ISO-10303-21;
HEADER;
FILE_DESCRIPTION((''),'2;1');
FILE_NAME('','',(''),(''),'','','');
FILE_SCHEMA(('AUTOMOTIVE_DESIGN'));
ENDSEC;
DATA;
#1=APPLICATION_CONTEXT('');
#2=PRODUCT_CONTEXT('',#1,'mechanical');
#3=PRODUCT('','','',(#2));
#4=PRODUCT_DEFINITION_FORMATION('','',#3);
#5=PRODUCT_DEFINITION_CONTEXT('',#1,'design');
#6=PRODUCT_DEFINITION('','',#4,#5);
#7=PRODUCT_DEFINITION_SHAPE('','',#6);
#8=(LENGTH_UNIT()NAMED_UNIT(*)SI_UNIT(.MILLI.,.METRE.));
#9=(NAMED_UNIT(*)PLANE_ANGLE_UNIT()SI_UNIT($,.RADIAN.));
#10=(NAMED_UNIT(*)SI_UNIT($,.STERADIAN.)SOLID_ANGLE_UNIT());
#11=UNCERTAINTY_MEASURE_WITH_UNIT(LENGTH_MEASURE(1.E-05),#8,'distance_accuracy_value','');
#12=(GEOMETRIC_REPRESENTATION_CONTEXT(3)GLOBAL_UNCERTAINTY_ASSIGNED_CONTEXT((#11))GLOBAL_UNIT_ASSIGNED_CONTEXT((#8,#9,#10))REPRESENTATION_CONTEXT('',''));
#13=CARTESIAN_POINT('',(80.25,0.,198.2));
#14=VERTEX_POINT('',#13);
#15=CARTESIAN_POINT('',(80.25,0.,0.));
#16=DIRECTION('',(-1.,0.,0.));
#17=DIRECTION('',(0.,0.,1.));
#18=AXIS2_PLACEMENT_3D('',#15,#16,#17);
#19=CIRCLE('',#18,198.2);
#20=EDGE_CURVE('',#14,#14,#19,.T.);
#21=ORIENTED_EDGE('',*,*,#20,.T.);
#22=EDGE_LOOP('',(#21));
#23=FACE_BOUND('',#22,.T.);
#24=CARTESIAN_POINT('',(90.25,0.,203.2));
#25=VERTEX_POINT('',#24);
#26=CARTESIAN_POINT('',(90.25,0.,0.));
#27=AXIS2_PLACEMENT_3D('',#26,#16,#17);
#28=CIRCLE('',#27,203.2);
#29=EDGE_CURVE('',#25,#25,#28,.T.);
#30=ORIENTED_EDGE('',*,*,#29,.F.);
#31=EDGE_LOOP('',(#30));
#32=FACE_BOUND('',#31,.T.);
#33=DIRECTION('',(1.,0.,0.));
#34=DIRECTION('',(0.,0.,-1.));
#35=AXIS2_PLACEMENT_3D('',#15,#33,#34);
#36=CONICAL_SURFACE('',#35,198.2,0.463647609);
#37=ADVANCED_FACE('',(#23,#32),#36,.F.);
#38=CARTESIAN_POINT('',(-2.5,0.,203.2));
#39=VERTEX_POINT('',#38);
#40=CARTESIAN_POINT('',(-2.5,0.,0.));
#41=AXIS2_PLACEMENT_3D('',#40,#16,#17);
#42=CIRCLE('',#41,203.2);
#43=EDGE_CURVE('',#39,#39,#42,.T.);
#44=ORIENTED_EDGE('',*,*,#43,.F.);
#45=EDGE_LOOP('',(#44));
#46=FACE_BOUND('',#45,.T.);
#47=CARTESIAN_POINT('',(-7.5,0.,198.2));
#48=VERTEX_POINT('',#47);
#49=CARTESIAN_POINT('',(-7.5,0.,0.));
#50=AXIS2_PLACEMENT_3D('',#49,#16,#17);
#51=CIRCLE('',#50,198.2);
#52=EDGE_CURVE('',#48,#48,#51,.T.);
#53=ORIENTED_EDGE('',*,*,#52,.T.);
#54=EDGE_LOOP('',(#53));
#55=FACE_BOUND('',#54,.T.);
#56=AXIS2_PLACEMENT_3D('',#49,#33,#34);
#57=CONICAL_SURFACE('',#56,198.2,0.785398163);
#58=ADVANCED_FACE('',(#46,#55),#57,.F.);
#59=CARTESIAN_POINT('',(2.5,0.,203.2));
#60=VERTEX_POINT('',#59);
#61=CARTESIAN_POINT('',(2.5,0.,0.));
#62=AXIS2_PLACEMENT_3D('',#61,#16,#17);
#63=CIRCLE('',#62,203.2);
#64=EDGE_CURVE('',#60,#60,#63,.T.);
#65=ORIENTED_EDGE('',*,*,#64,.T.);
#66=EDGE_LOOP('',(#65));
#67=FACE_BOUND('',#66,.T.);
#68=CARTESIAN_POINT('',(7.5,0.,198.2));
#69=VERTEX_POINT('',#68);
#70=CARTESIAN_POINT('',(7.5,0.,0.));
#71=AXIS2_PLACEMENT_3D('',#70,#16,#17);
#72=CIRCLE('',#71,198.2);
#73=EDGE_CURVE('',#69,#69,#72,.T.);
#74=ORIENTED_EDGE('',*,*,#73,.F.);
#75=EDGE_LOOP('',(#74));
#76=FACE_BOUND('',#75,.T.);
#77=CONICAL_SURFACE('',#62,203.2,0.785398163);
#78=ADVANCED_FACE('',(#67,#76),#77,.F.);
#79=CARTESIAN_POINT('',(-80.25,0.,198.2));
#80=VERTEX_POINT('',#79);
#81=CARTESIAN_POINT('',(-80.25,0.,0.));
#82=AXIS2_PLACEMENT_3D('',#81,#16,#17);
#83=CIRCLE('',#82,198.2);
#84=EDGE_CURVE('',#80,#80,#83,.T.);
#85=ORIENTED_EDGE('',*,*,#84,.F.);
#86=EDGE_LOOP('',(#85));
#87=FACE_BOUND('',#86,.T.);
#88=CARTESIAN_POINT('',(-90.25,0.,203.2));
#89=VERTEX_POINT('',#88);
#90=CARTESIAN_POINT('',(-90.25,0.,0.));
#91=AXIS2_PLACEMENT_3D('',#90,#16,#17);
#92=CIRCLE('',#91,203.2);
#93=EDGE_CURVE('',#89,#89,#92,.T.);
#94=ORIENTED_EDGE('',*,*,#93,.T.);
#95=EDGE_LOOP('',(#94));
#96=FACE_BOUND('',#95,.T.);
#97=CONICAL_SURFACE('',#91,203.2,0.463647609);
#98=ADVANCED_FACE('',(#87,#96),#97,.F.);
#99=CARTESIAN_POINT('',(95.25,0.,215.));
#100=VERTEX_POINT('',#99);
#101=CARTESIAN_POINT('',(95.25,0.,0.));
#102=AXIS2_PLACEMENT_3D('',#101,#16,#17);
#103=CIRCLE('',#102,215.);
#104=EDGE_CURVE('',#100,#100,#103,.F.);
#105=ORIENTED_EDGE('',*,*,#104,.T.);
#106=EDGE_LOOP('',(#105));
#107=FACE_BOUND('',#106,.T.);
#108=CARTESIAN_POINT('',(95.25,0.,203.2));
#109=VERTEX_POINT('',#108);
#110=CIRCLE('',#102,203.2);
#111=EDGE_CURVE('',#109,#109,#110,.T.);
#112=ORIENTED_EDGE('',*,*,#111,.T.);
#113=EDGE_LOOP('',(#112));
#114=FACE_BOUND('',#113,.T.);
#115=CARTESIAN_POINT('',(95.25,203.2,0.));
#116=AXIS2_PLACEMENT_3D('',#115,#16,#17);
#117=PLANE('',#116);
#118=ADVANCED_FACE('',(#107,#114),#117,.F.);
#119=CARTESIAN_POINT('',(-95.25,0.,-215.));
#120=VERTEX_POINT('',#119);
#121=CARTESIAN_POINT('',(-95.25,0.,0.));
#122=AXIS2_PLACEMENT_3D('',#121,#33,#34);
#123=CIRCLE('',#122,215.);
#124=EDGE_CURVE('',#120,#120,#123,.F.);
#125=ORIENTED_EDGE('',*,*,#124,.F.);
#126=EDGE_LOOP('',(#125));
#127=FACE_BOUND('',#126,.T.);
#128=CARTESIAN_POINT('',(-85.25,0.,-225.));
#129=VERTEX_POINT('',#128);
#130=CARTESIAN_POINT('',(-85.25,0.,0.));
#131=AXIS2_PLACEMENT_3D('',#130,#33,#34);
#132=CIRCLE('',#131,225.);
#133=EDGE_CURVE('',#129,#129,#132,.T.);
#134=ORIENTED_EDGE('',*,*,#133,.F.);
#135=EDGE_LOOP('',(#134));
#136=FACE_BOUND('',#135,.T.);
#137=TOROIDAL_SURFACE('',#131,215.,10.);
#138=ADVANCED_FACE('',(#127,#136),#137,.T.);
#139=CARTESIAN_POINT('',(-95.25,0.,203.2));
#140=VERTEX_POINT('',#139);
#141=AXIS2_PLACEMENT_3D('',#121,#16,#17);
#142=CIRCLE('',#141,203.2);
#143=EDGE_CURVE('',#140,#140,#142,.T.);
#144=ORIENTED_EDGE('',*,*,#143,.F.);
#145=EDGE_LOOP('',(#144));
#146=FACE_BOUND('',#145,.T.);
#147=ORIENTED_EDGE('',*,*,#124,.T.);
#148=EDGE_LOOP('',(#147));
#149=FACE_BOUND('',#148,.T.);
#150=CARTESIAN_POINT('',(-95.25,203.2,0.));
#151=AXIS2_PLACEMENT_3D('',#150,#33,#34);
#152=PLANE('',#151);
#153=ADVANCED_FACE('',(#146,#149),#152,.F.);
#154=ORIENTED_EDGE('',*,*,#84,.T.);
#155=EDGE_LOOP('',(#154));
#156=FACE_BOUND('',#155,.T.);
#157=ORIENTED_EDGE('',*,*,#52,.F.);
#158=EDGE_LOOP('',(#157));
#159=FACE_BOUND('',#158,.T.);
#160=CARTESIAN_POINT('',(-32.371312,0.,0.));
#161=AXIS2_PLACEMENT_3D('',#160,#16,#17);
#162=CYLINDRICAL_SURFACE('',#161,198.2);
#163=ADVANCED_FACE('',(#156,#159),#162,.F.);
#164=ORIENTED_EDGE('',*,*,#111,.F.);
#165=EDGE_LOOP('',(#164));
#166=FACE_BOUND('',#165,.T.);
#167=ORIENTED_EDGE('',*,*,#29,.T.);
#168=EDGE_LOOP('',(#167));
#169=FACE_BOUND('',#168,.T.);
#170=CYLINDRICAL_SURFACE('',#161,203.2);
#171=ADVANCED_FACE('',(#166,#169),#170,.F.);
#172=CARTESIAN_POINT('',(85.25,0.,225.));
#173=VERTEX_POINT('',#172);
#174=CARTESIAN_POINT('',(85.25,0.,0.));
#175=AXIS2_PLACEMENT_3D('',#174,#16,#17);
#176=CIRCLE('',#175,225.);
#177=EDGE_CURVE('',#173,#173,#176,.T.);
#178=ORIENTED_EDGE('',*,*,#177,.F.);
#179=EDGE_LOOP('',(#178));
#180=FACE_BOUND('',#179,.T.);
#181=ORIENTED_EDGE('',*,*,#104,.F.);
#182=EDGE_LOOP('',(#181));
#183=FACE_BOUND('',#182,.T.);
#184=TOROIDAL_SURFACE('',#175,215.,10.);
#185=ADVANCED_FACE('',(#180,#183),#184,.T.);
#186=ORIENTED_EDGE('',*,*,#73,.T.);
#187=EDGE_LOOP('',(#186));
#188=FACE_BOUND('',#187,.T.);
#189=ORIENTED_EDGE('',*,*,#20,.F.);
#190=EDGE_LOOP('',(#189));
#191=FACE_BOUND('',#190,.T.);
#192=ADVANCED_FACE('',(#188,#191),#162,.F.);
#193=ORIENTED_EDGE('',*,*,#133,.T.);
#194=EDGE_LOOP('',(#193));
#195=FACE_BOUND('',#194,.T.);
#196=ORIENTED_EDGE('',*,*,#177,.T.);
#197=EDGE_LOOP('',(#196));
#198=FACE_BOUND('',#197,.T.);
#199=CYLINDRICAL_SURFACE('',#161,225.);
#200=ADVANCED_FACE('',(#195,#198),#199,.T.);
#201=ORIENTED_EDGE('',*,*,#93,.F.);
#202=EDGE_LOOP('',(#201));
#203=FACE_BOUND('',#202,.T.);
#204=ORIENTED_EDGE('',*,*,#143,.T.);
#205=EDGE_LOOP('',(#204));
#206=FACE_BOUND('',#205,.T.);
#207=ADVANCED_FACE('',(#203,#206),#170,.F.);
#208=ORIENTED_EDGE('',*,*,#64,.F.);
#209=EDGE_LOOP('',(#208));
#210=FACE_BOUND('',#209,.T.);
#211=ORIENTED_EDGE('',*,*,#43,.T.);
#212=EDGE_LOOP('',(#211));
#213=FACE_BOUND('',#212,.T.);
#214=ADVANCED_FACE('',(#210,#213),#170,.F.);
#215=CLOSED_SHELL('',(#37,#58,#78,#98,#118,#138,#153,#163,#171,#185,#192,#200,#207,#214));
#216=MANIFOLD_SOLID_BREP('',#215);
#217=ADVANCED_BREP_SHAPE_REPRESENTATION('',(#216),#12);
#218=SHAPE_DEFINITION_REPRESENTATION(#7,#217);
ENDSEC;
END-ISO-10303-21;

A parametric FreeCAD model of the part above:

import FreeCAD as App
import Part
import Sketcher

V = App.Vector
Q = App.Units.Quantity


def edges_at(feature, points):
    """Names of the edges that pass closest to the given points."""
    edges = feature.Shape.Edges
    near = lambda p: min(range(len(edges)), key=lambda i: edges[i].distToShape(Part.Vertex(*p))[0])
    return sorted({f"Edge{near(p) + 1}" for p in points})


def add_polygon(sketch, points):
    """Adds a closed chain of lines whose ends are joined by coincident constraints."""
    first, n = sketch.GeometryCount, len(points)
    for a, b in zip(points, points[1:] + points[:1]):
        sketch.addGeometry(Part.LineSegment(App.Vector(*a, 0), App.Vector(*b, 0)), False)
    for i in range(n):
        sketch.addConstraint(Sketcher.Constraint("Coincident", first + i, 2, first + (i + 1) % n, 1))

doc = App.newDocument("Part")
body = doc.addObject("PartDesign::Body", "Body")

sketch1 = body.newObject("Sketcher::SketchObject", "Sketch")
sketch1.AttachmentSupport = (doc.getObject("XY_Plane"), [""])
sketch1.MapMode = "FlatFace"
add_polygon(sketch1, [(-80.25, 198.2), (-7.5, 198.2), (-2.5, 203.2), (2.5, 203.2), (7.5, 198.2), (80.25, 198.2), (90.25, 203.2), (95.25, 203.2), (95.25, 225), (-95.25, 225), (-95.25, 203.2), (-90.25, 203.2)])
sketch1.addConstraint([
    Sketcher.Constraint("Horizontal", 0),
    Sketcher.Constraint("Horizontal", 2),
    Sketcher.Constraint("Horizontal", 4),
    Sketcher.Constraint("Horizontal", 6),
    Sketcher.Constraint("Vertical", 7),
    Sketcher.Constraint("Horizontal", 8),
    Sketcher.Constraint("Vertical", 9),
    Sketcher.Constraint("Horizontal", 10),
    Sketcher.Constraint("Symmetric", 0, 2, 3, 2, -2),
    Sketcher.Constraint("Symmetric", 6, 2, 9, 2, -2),
    Sketcher.Constraint("Perpendicular", 1, 3),
    Sketcher.Constraint("Horizontal", 2, 2, 5, 2),
    Sketcher.Constraint("Equal", 0, 4),
    Sketcher.Constraint("Equal", 2, 6),
    Sketcher.Constraint("Equal", 6, 10),
    Sketcher.Constraint("Equal", 1, 3),
    Sketcher.Constraint("DistanceX", 2, 1, 2, 2, Q("5 mm")),
    Sketcher.Constraint("DistanceX", 8, 2, 8, 1, Q("190.5 mm")),
    Sketcher.Constraint("DistanceY", 7, 1, 7, 2, Q("21.8 mm")),
    Sketcher.Constraint("DistanceY", -1, 1, 7, 2, Q("225 mm")),
    Sketcher.Constraint("DistanceX", 0, 2, 1, 2, Q("5 mm")),
    Sketcher.Constraint("DistanceX", 4, 2, 5, 2, Q("10 mm")),
])
revolution = body.newObject("PartDesign::Revolution", "Revolution")
revolution.Profile = sketch1
revolution.ReferenceAxis = (sketch1, ["H_Axis"])
revolution.Angle = 360
doc.recompute()

fillet = body.newObject("PartDesign::Fillet", "Fillet")
fillet.Base = (revolution, edges_at(revolution, [(-95.25, 0, -225), (95.25, 0, -225)]))
fillet.Radius = 10

doc.recompute()
